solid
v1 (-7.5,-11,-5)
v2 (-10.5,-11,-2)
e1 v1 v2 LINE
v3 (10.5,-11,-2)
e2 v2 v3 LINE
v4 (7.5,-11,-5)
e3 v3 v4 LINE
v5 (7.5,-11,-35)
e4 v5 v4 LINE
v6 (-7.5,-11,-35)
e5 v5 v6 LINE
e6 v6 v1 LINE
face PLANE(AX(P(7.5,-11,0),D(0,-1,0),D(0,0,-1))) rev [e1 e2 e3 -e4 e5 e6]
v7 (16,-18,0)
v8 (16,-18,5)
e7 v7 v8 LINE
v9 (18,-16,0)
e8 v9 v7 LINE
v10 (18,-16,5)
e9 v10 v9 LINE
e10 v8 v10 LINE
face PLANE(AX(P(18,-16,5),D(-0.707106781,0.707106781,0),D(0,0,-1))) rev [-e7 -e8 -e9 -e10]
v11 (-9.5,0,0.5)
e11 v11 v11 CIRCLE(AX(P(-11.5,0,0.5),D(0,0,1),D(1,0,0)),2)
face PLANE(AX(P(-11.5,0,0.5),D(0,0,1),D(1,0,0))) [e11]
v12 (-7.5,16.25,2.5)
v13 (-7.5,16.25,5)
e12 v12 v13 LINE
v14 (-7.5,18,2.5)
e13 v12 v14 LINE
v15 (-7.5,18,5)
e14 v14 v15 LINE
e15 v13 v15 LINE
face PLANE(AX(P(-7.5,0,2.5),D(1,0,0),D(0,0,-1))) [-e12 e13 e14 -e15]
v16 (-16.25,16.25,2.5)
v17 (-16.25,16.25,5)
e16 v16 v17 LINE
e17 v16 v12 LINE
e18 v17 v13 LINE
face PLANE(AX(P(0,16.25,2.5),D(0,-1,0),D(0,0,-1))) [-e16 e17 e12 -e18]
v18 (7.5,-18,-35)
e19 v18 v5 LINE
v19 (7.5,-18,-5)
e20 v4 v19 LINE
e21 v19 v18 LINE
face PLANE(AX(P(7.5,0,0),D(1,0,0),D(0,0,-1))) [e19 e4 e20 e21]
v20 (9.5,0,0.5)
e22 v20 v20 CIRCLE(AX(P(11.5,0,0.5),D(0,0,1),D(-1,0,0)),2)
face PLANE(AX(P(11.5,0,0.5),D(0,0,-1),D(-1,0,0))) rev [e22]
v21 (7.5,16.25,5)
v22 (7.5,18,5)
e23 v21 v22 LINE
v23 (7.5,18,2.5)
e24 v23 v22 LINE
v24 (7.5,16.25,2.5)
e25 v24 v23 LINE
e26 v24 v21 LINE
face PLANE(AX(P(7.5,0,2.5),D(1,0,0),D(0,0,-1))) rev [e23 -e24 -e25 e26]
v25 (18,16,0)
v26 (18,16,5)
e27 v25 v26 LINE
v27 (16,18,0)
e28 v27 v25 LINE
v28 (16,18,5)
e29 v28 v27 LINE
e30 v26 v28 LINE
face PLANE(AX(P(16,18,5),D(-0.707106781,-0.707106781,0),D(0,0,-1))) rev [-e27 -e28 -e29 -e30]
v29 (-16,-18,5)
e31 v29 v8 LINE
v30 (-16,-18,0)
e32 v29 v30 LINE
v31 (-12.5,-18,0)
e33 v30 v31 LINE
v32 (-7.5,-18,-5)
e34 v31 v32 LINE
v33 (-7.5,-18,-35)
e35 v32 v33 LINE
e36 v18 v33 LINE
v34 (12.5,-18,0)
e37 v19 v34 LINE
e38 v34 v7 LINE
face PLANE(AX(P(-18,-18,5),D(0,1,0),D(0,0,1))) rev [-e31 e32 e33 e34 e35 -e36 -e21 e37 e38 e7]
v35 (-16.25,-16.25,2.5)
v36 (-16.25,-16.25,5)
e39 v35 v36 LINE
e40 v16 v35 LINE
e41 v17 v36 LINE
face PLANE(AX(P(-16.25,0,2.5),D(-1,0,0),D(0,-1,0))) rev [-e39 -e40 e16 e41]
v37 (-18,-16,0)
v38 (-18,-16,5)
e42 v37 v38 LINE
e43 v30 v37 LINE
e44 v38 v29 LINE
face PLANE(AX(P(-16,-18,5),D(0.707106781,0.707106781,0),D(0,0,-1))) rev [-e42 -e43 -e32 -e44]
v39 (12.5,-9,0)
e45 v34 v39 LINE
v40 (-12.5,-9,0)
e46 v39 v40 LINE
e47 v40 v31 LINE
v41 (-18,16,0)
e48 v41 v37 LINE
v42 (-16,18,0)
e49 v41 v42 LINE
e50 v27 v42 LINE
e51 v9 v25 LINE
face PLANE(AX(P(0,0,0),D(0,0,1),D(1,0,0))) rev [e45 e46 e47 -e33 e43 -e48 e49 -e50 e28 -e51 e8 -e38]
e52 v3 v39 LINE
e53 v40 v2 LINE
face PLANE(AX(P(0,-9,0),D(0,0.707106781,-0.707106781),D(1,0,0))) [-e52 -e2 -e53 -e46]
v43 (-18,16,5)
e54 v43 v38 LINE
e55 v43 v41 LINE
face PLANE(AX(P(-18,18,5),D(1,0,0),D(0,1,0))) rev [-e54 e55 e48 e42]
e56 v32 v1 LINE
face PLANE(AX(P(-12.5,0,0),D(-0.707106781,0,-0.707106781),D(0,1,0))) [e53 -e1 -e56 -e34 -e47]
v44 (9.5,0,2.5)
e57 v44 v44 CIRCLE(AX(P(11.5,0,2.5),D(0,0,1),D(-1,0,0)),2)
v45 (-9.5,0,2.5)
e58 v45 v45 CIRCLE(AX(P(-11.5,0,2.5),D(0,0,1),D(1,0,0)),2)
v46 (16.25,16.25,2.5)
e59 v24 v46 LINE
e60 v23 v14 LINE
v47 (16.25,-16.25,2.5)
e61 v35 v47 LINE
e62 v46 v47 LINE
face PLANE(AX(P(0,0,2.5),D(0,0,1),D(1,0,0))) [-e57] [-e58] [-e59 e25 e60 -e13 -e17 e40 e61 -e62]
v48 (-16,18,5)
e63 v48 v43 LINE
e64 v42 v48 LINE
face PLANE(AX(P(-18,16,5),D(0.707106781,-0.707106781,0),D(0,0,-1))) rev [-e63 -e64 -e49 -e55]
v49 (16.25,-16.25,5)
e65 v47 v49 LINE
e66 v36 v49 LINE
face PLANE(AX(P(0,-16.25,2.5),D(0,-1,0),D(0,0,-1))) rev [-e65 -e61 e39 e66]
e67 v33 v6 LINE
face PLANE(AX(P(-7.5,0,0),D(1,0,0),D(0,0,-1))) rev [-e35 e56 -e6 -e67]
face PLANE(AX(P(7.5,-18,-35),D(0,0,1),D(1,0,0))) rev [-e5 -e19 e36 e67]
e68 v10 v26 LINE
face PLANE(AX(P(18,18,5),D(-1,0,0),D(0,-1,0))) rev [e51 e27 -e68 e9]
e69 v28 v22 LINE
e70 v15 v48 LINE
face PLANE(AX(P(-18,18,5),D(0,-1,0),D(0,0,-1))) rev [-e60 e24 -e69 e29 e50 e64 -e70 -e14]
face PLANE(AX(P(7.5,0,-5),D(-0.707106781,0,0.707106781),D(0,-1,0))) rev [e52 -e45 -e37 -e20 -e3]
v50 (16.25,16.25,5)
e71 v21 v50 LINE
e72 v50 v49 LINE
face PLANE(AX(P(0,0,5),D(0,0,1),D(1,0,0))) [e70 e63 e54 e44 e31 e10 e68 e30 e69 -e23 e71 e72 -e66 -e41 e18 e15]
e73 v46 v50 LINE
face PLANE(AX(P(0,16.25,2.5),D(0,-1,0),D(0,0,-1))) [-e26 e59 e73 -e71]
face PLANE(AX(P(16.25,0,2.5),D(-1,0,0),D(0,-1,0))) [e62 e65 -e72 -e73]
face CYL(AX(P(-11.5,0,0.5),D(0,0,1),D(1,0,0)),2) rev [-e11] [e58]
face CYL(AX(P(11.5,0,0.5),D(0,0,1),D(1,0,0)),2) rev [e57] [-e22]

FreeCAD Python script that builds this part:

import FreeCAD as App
import Part
import Sketcher
from FreeCAD import Vector
Q = App.Units.Quantity


def edges_at(feature, points):
    """Names of the edges that pass closest to the given points."""
    edges = feature.Shape.Edges
    near = lambda p: min(range(len(edges)), key=lambda i: edges[i].distToShape(Part.Vertex(*p))[0])
    return sorted({f"Edge{near(p) + 1}" for p in points})

doc = App.newDocument("Part")
params = doc.addObject("Spreadsheet::Sheet", "Params")
for row, (alias, value) in enumerate([
    ("sketch1_width", "36 mm"),
    ("pad1_length", "5 mm"),
    ("sketch2_width", "15 mm"),
    ("sketch2_width2", "32.5 mm"),
    ("pocket1_length", "2.5 mm"),
    ("sketch3_width", "7 mm"),
    ("sketch3_height", "35 mm"),
    ("pad2_length", "15 mm"),
    ("chamfer_size", "5 mm"),
    ("chamfer2_size", "2 mm"),
    ("sketch4_diameter", "4 mm"),
    ("pocket2_length", "2 mm"),
    ("chamfer3_size", "2 mm"),
], start=1):
    params.set(f"A{row}", alias)
    params.set(f"B{row}", "=" + value)
    params.setAlias(f"B{row}", alias)

body = doc.addObject("PartDesign::Body", "Body")

sketch1 = doc.addObject("Sketcher::SketchObject", "Sketch")
body.addObject(sketch1)
sketch1.AttachmentSupport = (doc.XY_Plane, [""])
sketch1.MapMode = "FlatFace"
sketch1.addGeometry(Part.LineSegment(Vector(-18, 18, 0), Vector(-18, -18, 0)), False)
sketch1.addGeometry(Part.LineSegment(Vector(-18, -18, 0), Vector(18, -18, 0)), False)
sketch1.addGeometry(Part.LineSegment(Vector(18, -18, 0), Vector(18, 18, 0)), False)
sketch1.addGeometry(Part.LineSegment(Vector(18, 18, 0), Vector(-18, 18, 0)), False)
sketch1.addConstraint(Sketcher.Constraint("Coincident", 0, 2, 1, 1))
sketch1.addConstraint(Sketcher.Constraint("Coincident", 1, 2, 2, 1))
sketch1.addConstraint(Sketcher.Constraint("Coincident", 2, 2, 3, 1))
sketch1.addConstraint(Sketcher.Constraint("Coincident", 3, 2, 0, 1))
sketch1.addConstraint(Sketcher.Constraint("Vertical", 0))
sketch1.addConstraint(Sketcher.Constraint("Horizontal", 1))
sketch1.addConstraint(Sketcher.Constraint("Vertical", 2))
sketch1.addConstraint(Sketcher.Constraint("Horizontal", 3))
sketch1.addConstraint(Sketcher.Constraint("Symmetric", 0, 2, 2, 2, -1, 1))
sketch1.addConstraint(Sketcher.Constraint("Equal", 3, 0))
sketch1.addConstraint(Sketcher.Constraint("DistanceX", 1, 1, 1, 2, Q("36 mm")))
sketch1.setExpression("Constraints[10]", "Params.sketch1_width")
pad1 = doc.addObject("PartDesign::Pad", "Pad")
body.addObject(pad1)
pad1.Profile = sketch1
pad1.setExpression("Length", "Params.pad1_length")

sketch2 = doc.addObject("Sketcher::SketchObject", "Sketch001")
body.addObject(sketch2)
sketch2.AttachmentSupport = (doc.XY_Plane, [""])
sketch2.MapMode = "FlatFace"
sketch2.AttachmentOffset = App.Placement(Vector(0, 0, 5), App.Rotation())
sketch2.addGeometry(Part.LineSegment(Vector(-16.2, 16.2, 0), Vector(-16.2, -16.2, 0)), False)
sketch2.addGeometry(Part.LineSegment(Vector(-16.2, -16.2, 0), Vector(16.2, -16.2, 0)), False)
sketch2.addGeometry(Part.LineSegment(Vector(16.2, -16.2, 0), Vector(16.2, 16.2, 0)), False)
sketch2.addGeometry(Part.LineSegment(Vector(16.2, 16.2, 0), Vector(7.5, 16.2, 0)), False)
sketch2.addGeometry(Part.LineSegment(Vector(7.5, 16.2, 0), Vector(7.5, 18, 0)), False)
sketch2.addGeometry(Part.LineSegment(Vector(7.5, 18, 0), Vector(-7.5, 18, 0)), False)
sketch2.addGeometry(Part.LineSegment(Vector(-7.5, 18, 0), Vector(-7.5, 16.2, 0)), False)
sketch2.addGeometry(Part.LineSegment(Vector(-7.5, 16.2, 0), Vector(-16.2, 16.2, 0)), False)
sketch2.addConstraint(Sketcher.Constraint("Coincident", 0, 2, 1, 1))
sketch2.addConstraint(Sketcher.Constraint("Coincident", 1, 2, 2, 1))
sketch2.addConstraint(Sketcher.Constraint("Coincident", 2, 2, 3, 1))
sketch2.addConstraint(Sketcher.Constraint("Coincident", 3, 2, 4, 1))
sketch2.addConstraint(Sketcher.Constraint("Coincident", 4, 2, 5, 1))
sketch2.addConstraint(Sketcher.Constraint("Coincident", 5, 2, 6, 1))
sketch2.addConstraint(Sketcher.Constraint("Coincident", 6, 2, 7, 1))
sketch2.addConstraint(Sketcher.Constraint("Coincident", 7, 2, 0, 1))
sketch2.addConstraint(Sketcher.Constraint("Vertical", 0))
sketch2.addConstraint(Sketcher.Constraint("Horizontal", 1))
sketch2.addConstraint(Sketcher.Constraint("Vertical", 2))
sketch2.addConstraint(Sketcher.Constraint("Horizontal", 3))
sketch2.addConstraint(Sketcher.Constraint("Vertical", 4))
sketch2.addConstraint(Sketcher.Constraint("Horizontal", 5))
sketch2.addConstraint(Sketcher.Constraint("Vertical", 6))
sketch2.addConstraint(Sketcher.Constraint("Horizontal", 7))
sketch2.addConstraint(Sketcher.Constraint("Symmetric", 0, 2, 2, 2, -1, 1))
sketch2.addConstraint(Sketcher.Constraint("Symmetric", 3, 2, 6, 2, -2))
sketch2.addConstraint(Sketcher.Constraint("Equal", 1, 0))
sketch2.addConstraint(Sketcher.Constraint("DistanceX", 5, 2, 5, 1, Q("15 mm")))
sketch2.addConstraint(Sketcher.Constraint("DistanceX", 1, 1, 1, 2, Q("32.5 mm")))
sketch2.addConstraint(Sketcher.Constraint("DistanceY", -1, 1, 4, 2, Q("18 mm")))
sketch2.setExpression("Constraints[19]", "Params.sketch2_width")
sketch2.setExpression("Constraints[20]", "Params.sketch2_width2")
pocket1 = doc.addObject("PartDesign::Pocket", "Pocket")
body.addObject(pocket1)
pocket1.Profile = sketch2
pocket1.setExpression("Length", "Params.pocket1_length")

sketch3 = doc.addObject("Sketcher::SketchObject", "Sketch002")
body.addObject(sketch3)
sketch3.AttachmentSupport = (doc.YZ_Plane, [""])
sketch3.MapMode = "FlatFace"
sketch3.addGeometry(Part.LineSegment(Vector(-11, 0, 0), Vector(-18, 0, 0)), False)
sketch3.addGeometry(Part.LineSegment(Vector(-18, 0, 0), Vector(-18, -35, 0)), False)
sketch3.addGeometry(Part.LineSegment(Vector(-18, -35, 0), Vector(-11, -35, 0)), False)
sketch3.addGeometry(Part.LineSegment(Vector(-11, -35, 0), Vector(-11, 0, 0)), False)
sketch3.addConstraint(Sketcher.Constraint("Coincident", 0, 2, 1, 1))
sketch3.addConstraint(Sketcher.Constraint("Coincident", 1, 2, 2, 1))
sketch3.addConstraint(Sketcher.Constraint("Coincident", 2, 2, 3, 1))
sketch3.addConstraint(Sketcher.Constraint("Coincident", 3, 2, 0, 1))
sketch3.addConstraint(Sketcher.Constraint("Horizontal", 0))
sketch3.addConstraint(Sketcher.Constraint("Vertical", 1))
sketch3.addConstraint(Sketcher.Constraint("Horizontal", 2))
sketch3.addConstraint(Sketcher.Constraint("Vertical", 3))
sketch3.addConstraint(Sketcher.Constraint("PointOnObject", 0, 2, -1))
sketch3.addConstraint(Sketcher.Constraint("DistanceX", 0, 2, 0, 1, Q("7 mm")))
sketch3.addConstraint(Sketcher.Constraint("DistanceY", 1, 2, 1, 1, Q("35 mm")))
sketch3.addConstraint(Sketcher.Constraint("DistanceX", 0, 2, -1, 1, Q("18 mm")))
sketch3.setExpression("Constraints[9]", "Params.sketch3_width")
sketch3.setExpression("Constraints[10]", "Params.sketch3_height")
pad2 = doc.addObject("PartDesign::Pad", "Pad001")
body.addObject(pad2)
pad2.Profile = sketch3
pad2.setExpression("Length", "Params.pad2_length")
pad2.Midplane = True
doc.recompute()

chamfer = doc.addObject("PartDesign::Chamfer", "Chamfer")
body.addObject(chamfer)
chamfer.Base = (pad2, edges_at(pad2, [(-7.5, -14.5, 0), (7.5, -14.5, 0)]))
chamfer.setExpression("Size", "Params.chamfer_size")
doc.recompute()

chamfer2 = doc.addObject("PartDesign::Chamfer", "Chamfer001")
body.addObject(chamfer2)
chamfer2.Base = (chamfer, edges_at(chamfer, [
    (18, -18, 2.5),
    (-18, -18, 2.5),
    (-18, 18, 2.5),
    (18, 18, 2.5),
]))
chamfer2.setExpression("Size", "Params.chamfer2_size")

sketch4 = doc.addObject("Sketcher::SketchObject", "Sketch003")
body.addObject(sketch4)
sketch4.AttachmentSupport = (doc.XY_Plane, [""])
sketch4.MapMode = "FlatFace"
sketch4.AttachmentOffset = App.Placement(Vector(0, 0, 2.5), App.Rotation())
sketch4.addGeometry(Part.Circle(Vector(-11.5, 0, 0), Vector(0, 0, 1), 2), False)
sketch4.addGeometry(Part.Circle(Vector(11.5, 0, 0), Vector(0, 0, 1), 2), False)
sketch4.addConstraint(Sketcher.Constraint("Equal", 0, 1))
sketch4.addConstraint(Sketcher.Constraint("Symmetric", 0, 3, 1, 3, -1, 1))
sketch4.addConstraint(Sketcher.Constraint("PointOnObject", 0, 3, -1))
sketch4.addConstraint(Sketcher.Constraint("Diameter", 0, Q("4 mm")))
sketch4.addConstraint(Sketcher.Constraint("DistanceX", 0, 3, 1, 3, Q("23 mm")))
sketch4.setExpression("Constraints[3]", "Params.sketch4_diameter")
pocket2 = doc.addObject("PartDesign::Pocket", "Pocket001")
body.addObject(pocket2)
pocket2.Profile = sketch4
pocket2.setExpression("Length", "Params.pocket2_length")
doc.recompute()

chamfer3 = doc.addObject("PartDesign::Chamfer", "Chamfer002")
body.addObject(chamfer3)
chamfer3.Base = (pocket2, edges_at(pocket2, [(0, -11, 0)]))
chamfer3.setExpression("Size", "Params.chamfer3_size")

doc.recompute()
